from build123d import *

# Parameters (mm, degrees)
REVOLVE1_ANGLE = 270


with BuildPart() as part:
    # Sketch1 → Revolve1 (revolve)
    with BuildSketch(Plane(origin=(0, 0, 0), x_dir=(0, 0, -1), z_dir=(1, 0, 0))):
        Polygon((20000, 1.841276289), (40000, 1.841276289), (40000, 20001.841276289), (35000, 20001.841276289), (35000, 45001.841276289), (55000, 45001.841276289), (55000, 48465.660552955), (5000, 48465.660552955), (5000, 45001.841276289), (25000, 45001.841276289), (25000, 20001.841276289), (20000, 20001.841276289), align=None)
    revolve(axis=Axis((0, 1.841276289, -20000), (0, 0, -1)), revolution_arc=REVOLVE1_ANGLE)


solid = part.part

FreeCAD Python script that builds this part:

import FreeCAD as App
import Part
import Sketcher
from FreeCAD import Vector

doc = App.newDocument("Part")
params = doc.addObject("Spreadsheet::Sheet", "Params")
for row, (alias, value) in enumerate([
    ("sketch1_width", "20000 mm"),
    ("sketch1_width2", "25000 mm"),
    ("sketch1_height", "5000 mm"),
    ("revolution_angle", "270 deg"),
], start=1):
    params.set(f"A{row}", alias)
    params.set(f"B{row}", "=" + value)
    params.setAlias(f"B{row}", alias)

body = doc.addObject("PartDesign::Body", "Body")

# Sketch on YZ plane
sketch1 = body.newObject("Sketcher::SketchObject", "Sketch")
sketch1.AttachmentSupport = (doc.getObject("YZ_Plane"), [""])
sketch1.MapMode = "FlatFace"
sketch1.addGeometry(Part.LineSegment(Vector(2, -20000, 0), Vector(2, -40000, 0)), False)
sketch1.addGeometry(Part.LineSegment(Vector(2, -40000, 0), Vector(20002, -40000, 0)), False)
sketch1.addGeometry(Part.LineSegment(Vector(20002, -40000, 0), Vector(20002, -35000, 0)), False)
sketch1.addGeometry(Part.LineSegment(Vector(20002, -35000, 0), Vector(45002, -35000, 0)), False)
sketch1.addGeometry(Part.LineSegment(Vector(45002, -35000, 0), Vector(45002, -55000, 0)), False)
sketch1.addGeometry(Part.LineSegment(Vector(45002, -55000, 0), Vector(48466, -55000, 0)), False)
sketch1.addGeometry(Part.LineSegment(Vector(48466, -55000, 0), Vector(48466, -5000, 0)), False)
sketch1.addGeometry(Part.LineSegment(Vector(48466, -5000, 0), Vector(45002, -5000, 0)), False)
sketch1.addGeometry(Part.LineSegment(Vector(45002, -5000, 0), Vector(45002, -25000, 0)), False)
sketch1.addGeometry(Part.LineSegment(Vector(45002, -25000, 0), Vector(20002, -25000, 0)), False)
sketch1.addGeometry(Part.LineSegment(Vector(20002, -25000, 0), Vector(20002, -20000, 0)), False)
sketch1.addGeometry(Part.LineSegment(Vector(20002, -20000, 0), Vector(2, -20000, 0)), False)
sketch1.addGeometry(Part.LineSegment(Vector(2, -5000, 0), Vector(2, -55000, 0)), True)  # axis
sketch1.addConstraint(Sketcher.Constraint("Coincident", 0, 2, 1, 1))
sketch1.addConstraint(Sketcher.Constraint("Coincident", 1, 2, 2, 1))
sketch1.addConstraint(Sketcher.Constraint("Coincident", 2, 2, 3, 1))
sketch1.addConstraint(Sketcher.Constraint("Coincident", 3, 2, 4, 1))
sketch1.addConstraint(Sketcher.Constraint("Coincident", 4, 2, 5, 1))
sketch1.addConstraint(Sketcher.Constraint("Coincident", 5, 2, 6, 1))
sketch1.addConstraint(Sketcher.Constraint("Coincident", 6, 2, 7, 1))
sketch1.addConstraint(Sketcher.Constraint("Coincident", 7, 2, 8, 1))
sketch1.addConstraint(Sketcher.Constraint("Coincident", 8, 2, 9, 1))
sketch1.addConstraint(Sketcher.Constraint("Coincident", 9, 2, 10, 1))
sketch1.addConstraint(Sketcher.Constraint("Coincident", 10, 2, 11, 1))
sketch1.addConstraint(Sketcher.Constraint("Coincident", 11, 2, 0, 1))
sketch1.addConstraint(Sketcher.Constraint("Vertical", 0))
sketch1.addConstraint(Sketcher.Constraint("Horizontal", 1))
sketch1.addConstraint(Sketcher.Constraint("Vertical", 2))
sketch1.addConstraint(Sketcher.Constraint("Horizontal", 3))
sketch1.addConstraint(Sketcher.Constraint("Vertical", 4))
sketch1.addConstraint(Sketcher.Constraint("Horizontal", 5))
sketch1.addConstraint(Sketcher.Constraint("Vertical", 6))
sketch1.addConstraint(Sketcher.Constraint("Horizontal", 7))
sketch1.addConstraint(Sketcher.Constraint("Vertical", 8))
sketch1.addConstraint(Sketcher.Constraint("Horizontal", 9))
sketch1.addConstraint(Sketcher.Constraint("Vertical", 10))
sketch1.addConstraint(Sketcher.Constraint("Horizontal", 11))
sketch1.addConstraint(Sketcher.Constraint("Vertical", 12))
sketch1.addConstraint(Sketcher.Constraint("Horizontal", 7, 2, 12, 1))
sketch1.addConstraint(Sketcher.Constraint("Horizontal", 5, 2, 12, 2))
sketch1.addConstraint(Sketcher.Constraint("Vertical", 4, 2, 7, 2))
sketch1.addConstraint(Sketcher.Constraint("Vertical", 2, 2, 9, 2))
sketch1.addConstraint(Sketcher.Constraint("Vertical", 11, 2, 12, 1))
sketch1.addConstraint(Sketcher.Constraint("Equal", 11, 0))
sketch1.addConstraint(Sketcher.Constraint("Equal", 0, 4))
sketch1.addConstraint(Sketcher.Constraint("Equal", 4, 8))
sketch1.addConstraint(Sketcher.Constraint("Equal", 2, 10))
sketch1.addConstraint(Sketcher.Constraint("DistanceX", 1, 1, 1, 2, 20000.0))
sketch1.addConstraint(Sketcher.Constraint("DistanceX", 3, 1, 3, 2, 25000.0))
sketch1.addConstraint(Sketcher.Constraint("DistanceY", 2, 1, 2, 2, 5000.0))
sketch1.addConstraint(Sketcher.Constraint("DistanceY", 0, 2, -1, 1, 40000.0))
sketch1.addConstraint(Sketcher.Constraint("DistanceX", 5, 1, 5, 2, 3463.819277))
sketch1.addConstraint(Sketcher.Constraint("DistanceX", -1, 1, 0, 2, 1.841276))
sketch1.setExpression("Constraints[34]", "Params.sketch1_width")
sketch1.setExpression("Constraints[35]", "Params.sketch1_width2")
sketch1.setExpression("Constraints[36]", "Params.sketch1_height")
revolution = body.newObject("PartDesign::Revolution", "Revolution")
revolution.Profile = sketch1
revolution.ReferenceAxis = (sketch1, ["Axis0"])
revolution.setExpression("Angle", "Params.revolution_angle")

doc.recompute()
